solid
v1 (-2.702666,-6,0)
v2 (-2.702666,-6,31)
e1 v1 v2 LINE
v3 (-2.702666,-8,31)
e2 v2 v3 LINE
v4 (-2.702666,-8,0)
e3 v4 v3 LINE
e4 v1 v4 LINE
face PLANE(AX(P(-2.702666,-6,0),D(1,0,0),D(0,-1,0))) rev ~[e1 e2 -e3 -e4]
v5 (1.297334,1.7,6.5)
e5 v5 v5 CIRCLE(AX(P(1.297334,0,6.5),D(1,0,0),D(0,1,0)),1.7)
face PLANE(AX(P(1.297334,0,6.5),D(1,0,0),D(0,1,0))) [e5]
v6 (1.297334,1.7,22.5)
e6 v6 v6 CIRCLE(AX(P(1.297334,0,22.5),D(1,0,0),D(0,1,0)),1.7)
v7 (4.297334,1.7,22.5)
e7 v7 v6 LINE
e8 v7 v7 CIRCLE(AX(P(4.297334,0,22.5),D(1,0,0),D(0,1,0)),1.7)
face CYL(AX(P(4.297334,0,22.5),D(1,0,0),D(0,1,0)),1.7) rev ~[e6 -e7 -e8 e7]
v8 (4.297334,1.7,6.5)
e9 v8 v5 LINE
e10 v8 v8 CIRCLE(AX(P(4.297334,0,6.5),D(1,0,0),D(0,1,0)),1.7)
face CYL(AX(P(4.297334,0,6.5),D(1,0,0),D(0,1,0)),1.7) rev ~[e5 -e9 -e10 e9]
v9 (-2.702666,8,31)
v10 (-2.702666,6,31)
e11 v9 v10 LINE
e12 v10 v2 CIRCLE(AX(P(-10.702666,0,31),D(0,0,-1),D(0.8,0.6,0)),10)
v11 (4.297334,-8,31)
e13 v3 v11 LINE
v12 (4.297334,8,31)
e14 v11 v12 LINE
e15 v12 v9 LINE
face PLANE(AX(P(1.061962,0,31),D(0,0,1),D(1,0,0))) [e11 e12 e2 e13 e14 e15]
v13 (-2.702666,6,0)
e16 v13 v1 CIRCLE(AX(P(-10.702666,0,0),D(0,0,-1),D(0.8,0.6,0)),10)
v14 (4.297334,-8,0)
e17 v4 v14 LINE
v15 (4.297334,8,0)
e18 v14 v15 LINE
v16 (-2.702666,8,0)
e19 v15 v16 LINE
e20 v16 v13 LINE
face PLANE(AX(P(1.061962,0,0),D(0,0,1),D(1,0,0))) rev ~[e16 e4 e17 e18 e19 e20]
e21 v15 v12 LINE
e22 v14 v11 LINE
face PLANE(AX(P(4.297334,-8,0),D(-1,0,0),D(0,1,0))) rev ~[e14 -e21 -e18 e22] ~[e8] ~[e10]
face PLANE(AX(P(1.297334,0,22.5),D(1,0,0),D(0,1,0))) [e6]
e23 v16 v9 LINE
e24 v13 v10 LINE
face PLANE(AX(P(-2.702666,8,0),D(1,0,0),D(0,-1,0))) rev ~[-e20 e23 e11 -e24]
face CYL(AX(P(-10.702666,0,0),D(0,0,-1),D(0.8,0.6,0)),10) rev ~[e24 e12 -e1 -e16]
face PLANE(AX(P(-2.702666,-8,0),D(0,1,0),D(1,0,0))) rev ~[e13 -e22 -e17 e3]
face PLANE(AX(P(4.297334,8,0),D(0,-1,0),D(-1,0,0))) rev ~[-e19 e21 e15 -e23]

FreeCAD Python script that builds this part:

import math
import FreeCAD as App
import Part
import Sketcher
from FreeCAD import Vector
Q = App.Units.Quantity

doc = App.newDocument("Part")
body = doc.addObject("PartDesign::Body", "Body")

# Sketch on XY plane
sketch1 = body.newObject("Sketcher::SketchObject", "Sketch")
sketch1.AttachmentSupport = (doc.getObject("XY_Plane"), [""])
sketch1.MapMode = "FlatFace"
sketch1.addGeometry([
    Part.LineSegment(Vector(-2.7, -6, 0), Vector(-2.7, -8, 0)),  # 0
    Part.LineSegment(Vector(-2.7, -8, 0), Vector(4.3, -8, 0)),  # 1
    Part.LineSegment(Vector(4.3, -8, 0), Vector(4.3, 8, 0)),  # 2
    Part.LineSegment(Vector(4.3, 8, 0), Vector(-2.7, 8, 0)),  # 3
    Part.LineSegment(Vector(-2.7, 8, 0), Vector(-2.7, 6, 0)),  # 4
    Part.ArcOfCircle(Part.Circle(Vector(-10.7, 0, 0), Vector(0, 0, 1), 10), math.radians(-37), math.radians(37)),  # 5
], False)
sketch1.addConstraint([
    Sketcher.Constraint("Coincident", 0, 2, 1, 1),
    Sketcher.Constraint("Coincident", 1, 2, 2, 1),
    Sketcher.Constraint("Coincident", 2, 2, 3, 1),
    Sketcher.Constraint("Coincident", 3, 2, 4, 1),
    Sketcher.Constraint("Coincident", 4, 2, 5, 2),
    Sketcher.Constraint("Coincident", 5, 1, 0, 1),
    Sketcher.Constraint("Vertical", 0),
    Sketcher.Constraint("Horizontal", 1),
    Sketcher.Constraint("Vertical", 2),
    Sketcher.Constraint("Horizontal", 3),
    Sketcher.Constraint("Vertical", 4),
    Sketcher.Constraint("Symmetric", 0, 2, 3, 2, -1),
    Sketcher.Constraint("PointOnObject", 5, 3, -1),
    Sketcher.Constraint("Radius", 5, Q("10 mm")),
    Sketcher.Constraint("DistanceX", 1, 1, 1, 2, Q("7 mm")),
    Sketcher.Constraint("DistanceY", 0, 2, 0, 1, Q("2 mm")),
    Sketcher.Constraint("DistanceY", 2, 1, 2, 2, Q("16 mm")),
    Sketcher.Constraint("DistanceX", 5, 3, -1, 1, Q("10.702666 mm")),
])
pad1 = body.newObject("PartDesign::Pad", "Pad")
pad1.Profile = sketch1
pad1.Length = 31

# Sketch on YZ plane
sketch2 = body.newObject("Sketcher::SketchObject", "Sketch001")
sketch2.AttachmentSupport = (doc.getObject("YZ_Plane"), [""])
sketch2.MapMode = "FlatFace"
sketch2.AttachmentOffset = App.Placement(Vector(0, 0, 4.297334), App.Rotation())
sketch2.addGeometry([
    Part.Circle(Vector(0, 22.5, 0), Vector(0, 0, 1), 1.7),
    Part.Circle(Vector(0, 6.5, 0), Vector(0, 0, 1), 1.7),
], False)
sketch2.addConstraint([
    Sketcher.Constraint("Equal", 0, 1),
    Sketcher.Constraint("PointOnObject", 0, 3, -2),
    Sketcher.Constraint("PointOnObject", 1, 3, -2),
    Sketcher.Constraint("Diameter", 0, Q("3.4 mm")),
    Sketcher.Constraint("DistanceY", 1, 3, 0, 3, Q("16 mm")),
    Sketcher.Constraint("DistanceY", -1, 1, 0, 3, Q("22.5 mm")),
])
pocket1 = body.newObject("PartDesign::Pocket", "Pocket")
pocket1.Profile = sketch2
pocket1.Length = 3

doc.recompute()
